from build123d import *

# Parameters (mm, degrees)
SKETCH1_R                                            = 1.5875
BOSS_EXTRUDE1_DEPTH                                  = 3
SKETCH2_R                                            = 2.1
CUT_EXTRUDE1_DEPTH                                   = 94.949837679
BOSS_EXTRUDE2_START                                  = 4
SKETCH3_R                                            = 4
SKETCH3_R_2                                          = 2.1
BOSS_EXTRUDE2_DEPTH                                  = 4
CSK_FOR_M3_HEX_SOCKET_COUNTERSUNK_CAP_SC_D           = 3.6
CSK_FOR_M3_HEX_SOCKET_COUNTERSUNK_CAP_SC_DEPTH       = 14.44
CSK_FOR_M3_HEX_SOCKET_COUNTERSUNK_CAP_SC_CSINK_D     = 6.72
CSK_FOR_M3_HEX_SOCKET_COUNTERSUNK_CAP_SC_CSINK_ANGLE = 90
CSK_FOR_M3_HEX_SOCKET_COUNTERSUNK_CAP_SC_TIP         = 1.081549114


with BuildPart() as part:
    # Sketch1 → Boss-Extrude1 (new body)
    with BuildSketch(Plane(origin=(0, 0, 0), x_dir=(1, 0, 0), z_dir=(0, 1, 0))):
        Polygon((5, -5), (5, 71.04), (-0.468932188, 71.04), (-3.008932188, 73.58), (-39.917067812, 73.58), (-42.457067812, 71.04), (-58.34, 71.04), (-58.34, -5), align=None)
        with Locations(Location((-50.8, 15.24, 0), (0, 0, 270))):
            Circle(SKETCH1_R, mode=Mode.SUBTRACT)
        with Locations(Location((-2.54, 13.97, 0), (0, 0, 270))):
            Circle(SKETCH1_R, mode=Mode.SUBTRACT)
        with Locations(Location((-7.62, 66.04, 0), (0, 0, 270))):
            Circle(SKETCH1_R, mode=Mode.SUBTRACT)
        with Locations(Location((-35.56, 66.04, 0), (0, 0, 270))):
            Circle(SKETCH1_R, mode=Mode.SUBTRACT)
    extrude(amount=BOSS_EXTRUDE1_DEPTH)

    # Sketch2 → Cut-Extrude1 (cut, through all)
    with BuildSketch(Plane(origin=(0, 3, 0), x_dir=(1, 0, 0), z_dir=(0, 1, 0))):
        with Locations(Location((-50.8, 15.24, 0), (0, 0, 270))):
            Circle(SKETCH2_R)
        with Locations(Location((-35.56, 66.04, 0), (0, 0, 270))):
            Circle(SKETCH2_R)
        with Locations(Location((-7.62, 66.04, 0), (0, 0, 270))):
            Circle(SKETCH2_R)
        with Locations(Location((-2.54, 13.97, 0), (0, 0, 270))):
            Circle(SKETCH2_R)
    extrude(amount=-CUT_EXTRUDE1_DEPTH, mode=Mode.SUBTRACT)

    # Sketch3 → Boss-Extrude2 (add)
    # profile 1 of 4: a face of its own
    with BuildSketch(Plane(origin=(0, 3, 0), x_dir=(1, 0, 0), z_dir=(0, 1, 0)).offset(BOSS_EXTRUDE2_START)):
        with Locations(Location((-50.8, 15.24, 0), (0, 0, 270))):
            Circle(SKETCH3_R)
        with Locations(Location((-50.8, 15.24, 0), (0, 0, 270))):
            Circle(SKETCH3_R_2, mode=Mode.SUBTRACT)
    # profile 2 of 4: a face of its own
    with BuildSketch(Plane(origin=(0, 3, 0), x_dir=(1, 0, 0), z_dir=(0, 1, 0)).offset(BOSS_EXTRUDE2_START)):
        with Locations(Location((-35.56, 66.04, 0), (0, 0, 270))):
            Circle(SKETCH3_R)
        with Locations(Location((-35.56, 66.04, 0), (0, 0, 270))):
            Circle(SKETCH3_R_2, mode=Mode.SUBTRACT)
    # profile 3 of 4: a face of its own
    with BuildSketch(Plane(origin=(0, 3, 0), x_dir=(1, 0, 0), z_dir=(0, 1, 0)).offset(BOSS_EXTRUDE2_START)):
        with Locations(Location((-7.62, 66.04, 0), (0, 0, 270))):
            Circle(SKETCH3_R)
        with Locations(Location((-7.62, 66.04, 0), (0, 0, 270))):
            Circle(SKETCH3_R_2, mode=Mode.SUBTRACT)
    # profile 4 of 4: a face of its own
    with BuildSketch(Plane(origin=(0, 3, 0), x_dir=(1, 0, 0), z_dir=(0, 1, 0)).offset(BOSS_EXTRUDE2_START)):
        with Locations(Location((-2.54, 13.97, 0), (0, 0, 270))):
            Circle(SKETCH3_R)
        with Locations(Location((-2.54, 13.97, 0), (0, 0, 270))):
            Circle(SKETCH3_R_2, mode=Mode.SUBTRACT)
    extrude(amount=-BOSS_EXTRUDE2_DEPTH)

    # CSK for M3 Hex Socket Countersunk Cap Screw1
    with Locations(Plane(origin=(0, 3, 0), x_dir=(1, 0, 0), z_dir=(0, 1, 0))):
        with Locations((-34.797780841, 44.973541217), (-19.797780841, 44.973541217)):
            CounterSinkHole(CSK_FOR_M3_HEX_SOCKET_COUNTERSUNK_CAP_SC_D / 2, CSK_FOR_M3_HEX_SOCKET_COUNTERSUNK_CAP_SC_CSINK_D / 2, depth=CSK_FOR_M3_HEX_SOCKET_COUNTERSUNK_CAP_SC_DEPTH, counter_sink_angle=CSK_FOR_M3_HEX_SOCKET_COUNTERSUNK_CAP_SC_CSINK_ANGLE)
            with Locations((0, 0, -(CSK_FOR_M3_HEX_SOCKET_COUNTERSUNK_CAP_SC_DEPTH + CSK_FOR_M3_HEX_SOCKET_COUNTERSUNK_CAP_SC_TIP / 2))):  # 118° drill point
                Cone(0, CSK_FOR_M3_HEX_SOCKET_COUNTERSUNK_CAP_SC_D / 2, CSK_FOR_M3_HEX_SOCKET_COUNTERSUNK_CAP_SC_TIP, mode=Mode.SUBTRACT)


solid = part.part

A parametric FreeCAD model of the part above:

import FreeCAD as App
import Part
import Sketcher


def add_polygon(sketch, points):
    """Adds a closed chain of lines whose ends are joined by coincident constraints."""
    first, n = sketch.GeometryCount, len(points)
    for a, b in zip(points, points[1:] + points[:1]):
        sketch.addGeometry(Part.LineSegment(App.Vector(*a, 0), App.Vector(*b, 0)), False)
    for i in range(n):
        sketch.addConstraint(Sketcher.Constraint("Coincident", first + i, 2, first + (i + 1) % n, 1))

doc = App.newDocument("Part")
body = doc.addObject("PartDesign::Body", "Body")

# Sketch on XZ plane
sketch1 = body.newObject("Sketcher::SketchObject", "Sketch")
sketch1.AttachmentSupport = (doc.getObject("XZ_Plane"), [""])
sketch1.MapMode = "FlatFace"
add_polygon(sketch1, [(5, 5), (5, -71), (-0.5, -71), (-3, -73.6), (-39.9, -73.6), (-42.5, -71), (-58.3, -71), (-58.3, 5)])  # lines 0-7
sketch1.addGeometry(Part.Circle(App.Vector(-50.8, -15.2, 0), App.Vector(0, 0, 1), 1.6), False)  # 8
sketch1.addGeometry(Part.Circle(App.Vector(-2.5, -14, 0), App.Vector(0, 0, 1), 1.6), False)  # 9
sketch1.addGeometry(Part.Circle(App.Vector(-35.6, -66, 0), App.Vector(0, 0, 1), 1.6), False)  # 10
sketch1.addGeometry(Part.Circle(App.Vector(-7.6, -66, 0), App.Vector(0, 0, 1), 1.6), False)  # 11
sketch1.addConstraint(Sketcher.Constraint("Vertical", 0))
sketch1.addConstraint(Sketcher.Constraint("Horizontal", 1))
sketch1.addConstraint(Sketcher.Constraint("Horizontal", 3))
sketch1.addConstraint(Sketcher.Constraint("Horizontal", 5))
sketch1.addConstraint(Sketcher.Constraint("Vertical", 6))
sketch1.addConstraint(Sketcher.Constraint("Horizontal", 7))
sketch1.addConstraint(Sketcher.Constraint("Equal", 8, 9))
sketch1.addConstraint(Sketcher.Constraint("Equal", 9, 10))
sketch1.addConstraint(Sketcher.Constraint("Equal", 10, 11))
sketch1.addConstraint(Sketcher.Constraint("Perpendicular", 2, 4))
sketch1.addConstraint(Sketcher.Constraint("Horizontal", 10, 3, 11, 3))
sketch1.addConstraint(Sketcher.Constraint("Horizontal", 1, 2, 4, 2))
sketch1.addConstraint(Sketcher.Constraint("Equal", 2, 4))
sketch1.addConstraint(Sketcher.Constraint("Diameter", 8, 3.175))
sketch1.addConstraint(Sketcher.Constraint("DistanceX", -1, 1, 0, 2, 5.0))
sketch1.addConstraint(Sketcher.Constraint("DistanceY", -1, 1, 6, 2, 5.0))
sketch1.addConstraint(Sketcher.Constraint("DistanceY", 0, 2, 11, 3, 5.0))
sketch1.addConstraint(Sketcher.Constraint("DistanceX", 7, 1, 7, 2, 63.34))
sketch1.addConstraint(Sketcher.Constraint("DistanceY", 0, 2, 0, 1, 76.04))
sketch1.addConstraint(Sketcher.Constraint("DistanceX", 8, 3, -1, 1, 50.8))
sketch1.addConstraint(Sketcher.Constraint("DistanceY", 10, 3, 8, 3, 50.8))
sketch1.addConstraint(Sketcher.Constraint("DistanceX", 6, 2, 9, 3, 55.8))
sketch1.addConstraint(Sketcher.Constraint("DistanceY", 9, 3, -1, 1, 13.97))
sketch1.addConstraint(Sketcher.Constraint("DistanceX", 10, 3, -1, 1, 35.56))
sketch1.addConstraint(Sketcher.Constraint("DistanceX", 11, 3, -1, 1, 7.62))
sketch1.addConstraint(Sketcher.Constraint("DistanceY", 2, 2, -1, 1, 73.58))
sketch1.addConstraint(Sketcher.Constraint("DistanceX", 1, 2, 1, 1, 5.468932))
sketch1.addConstraint(Sketcher.Constraint("DistanceX", 3, 2, 3, 1, 36.908136))
pad1 = body.newObject("PartDesign::Pad", "Pad")
pad1.Profile = sketch1
pad1.Length = 3
pad1.Reversed = True

# Sketch on XZ plane
sketch2 = body.newObject("Sketcher::SketchObject", "Sketch001")
sketch2.AttachmentSupport = (doc.getObject("XZ_Plane"), [""])
sketch2.MapMode = "FlatFace"
sketch2.AttachmentOffset = App.Placement(App.Vector(0, 0, -3), App.Rotation())
sketch2.addGeometry(Part.Circle(App.Vector(-50.8, -15.2, 0), App.Vector(0, 0, 1), 2.1), False)
sketch2.addGeometry(Part.Circle(App.Vector(-35.6, -66, 0), App.Vector(0, 0, 1), 2.1), False)
sketch2.addGeometry(Part.Circle(App.Vector(-7.6, -66, 0), App.Vector(0, 0, 1), 2.1), False)
sketch2.addGeometry(Part.Circle(App.Vector(-2.5, -14, 0), App.Vector(0, 0, 1), 2.1), False)
sketch2.addConstraint(Sketcher.Constraint("Equal", 0, 1))
sketch2.addConstraint(Sketcher.Constraint("Equal", 1, 2))
sketch2.addConstraint(Sketcher.Constraint("Equal", 2, 3))
sketch2.addConstraint(Sketcher.Constraint("Horizontal", 1, 3, 2, 3))
sketch2.addConstraint(Sketcher.Constraint("Diameter", 0, 4.2))
sketch2.addConstraint(Sketcher.Constraint("DistanceX", 0, 3, -1, 1, 50.8))
sketch2.addConstraint(Sketcher.Constraint("DistanceY", 1, 3, 0, 3, 50.8))
sketch2.addConstraint(Sketcher.Constraint("DistanceY", 0, 3, -1, 1, 15.24))
sketch2.addConstraint(Sketcher.Constraint("DistanceX", 1, 3, -1, 1, 35.56))
sketch2.addConstraint(Sketcher.Constraint("DistanceX", 2, 3, -1, 1, 7.62))
sketch2.addConstraint(Sketcher.Constraint("DistanceX", 3, 3, -1, 1, 2.54))
sketch2.addConstraint(Sketcher.Constraint("DistanceY", 3, 3, -1, 1, 13.97))
pocket1 = body.newObject("PartDesign::Pocket", "Pocket")
pocket1.Profile = sketch2
pocket1.Type = "ThroughAll"
pocket1.Reversed = True

# Sketch on XZ plane
sketch3 = body.newObject("Sketcher::SketchObject", "Sketch002")
sketch3.AttachmentSupport = (doc.getObject("XZ_Plane"), [""])
sketch3.MapMode = "FlatFace"
sketch3.AttachmentOffset = App.Placement(App.Vector(0, 0, -7), App.Rotation())
sketch3.addGeometry(Part.Circle(App.Vector(-50.8, -15.2, 0), App.Vector(0, 0, 1), 4), False)
sketch3.addGeometry(Part.Circle(App.Vector(-50.8, -15.2, 0), App.Vector(0, 0, 1), 2.1), False)
sketch3.addGeometry(Part.Circle(App.Vector(-35.6, -66, 0), App.Vector(0, 0, 1), 4), False)
sketch3.addGeometry(Part.Circle(App.Vector(-35.6, -66, 0), App.Vector(0, 0, 1), 2.1), False)
sketch3.addGeometry(Part.Circle(App.Vector(-7.6, -66, 0), App.Vector(0, 0, 1), 4), False)
sketch3.addGeometry(Part.Circle(App.Vector(-7.6, -66, 0), App.Vector(0, 0, 1), 2.1), False)
sketch3.addGeometry(Part.Circle(App.Vector(-2.5, -14, 0), App.Vector(0, 0, 1), 4), False)
sketch3.addGeometry(Part.Circle(App.Vector(-2.5, -14, 0), App.Vector(0, 0, 1), 2.1), False)
sketch3.addConstraint(Sketcher.Constraint("Coincident", 1, 3, 0, 3))
sketch3.addConstraint(Sketcher.Constraint("Coincident", 3, 3, 2, 3))
sketch3.addConstraint(Sketcher.Constraint("Coincident", 5, 3, 4, 3))
sketch3.addConstraint(Sketcher.Constraint("Coincident", 7, 3, 6, 3))
sketch3.addConstraint(Sketcher.Constraint("Equal", 0, 2))
sketch3.addConstraint(Sketcher.Constraint("Equal", 1, 3))
sketch3.addConstraint(Sketcher.Constraint("Equal", 2, 4))
sketch3.addConstraint(Sketcher.Constraint("Equal", 3, 5))
sketch3.addConstraint(Sketcher.Constraint("Equal", 4, 6))
sketch3.addConstraint(Sketcher.Constraint("Equal", 5, 7))
sketch3.addConstraint(Sketcher.Constraint("Horizontal", 3, 3, 4, 3))
sketch3.addConstraint(Sketcher.Constraint("Diameter", 0, 8.0))
sketch3.addConstraint(Sketcher.Constraint("Diameter", 1, 4.2))
sketch3.addConstraint(Sketcher.Constraint("DistanceX", 0, 3, -1, 1, 50.8))
sketch3.addConstraint(Sketcher.Constraint("DistanceY", 2, 3, 0, 3, 50.8))
sketch3.addConstraint(Sketcher.Constraint("DistanceY", 0, 3, -1, 1, 15.24))
sketch3.addConstraint(Sketcher.Constraint("DistanceX", 2, 3, -1, 1, 35.56))
sketch3.addConstraint(Sketcher.Constraint("DistanceX", 4, 3, -1, 1, 7.62))
sketch3.addConstraint(Sketcher.Constraint("DistanceX", 6, 3, -1, 1, 2.54))
sketch3.addConstraint(Sketcher.Constraint("DistanceY", 6, 3, -1, 1, 13.97))
pad2 = body.newObject("PartDesign::Pad", "Pad001")
pad2.Profile = sketch3
pad2.Length = 4

# Sketch on XZ plane
sketch4 = body.newObject("Sketcher::SketchObject", "Sketch003")
sketch4.AttachmentSupport = (doc.getObject("XZ_Plane"), [""])
sketch4.MapMode = "FlatFace"
sketch4.AttachmentOffset = App.Placement(App.Vector(0, 0, -3), App.Rotation())
sketch4.addGeometry(Part.Circle(App.Vector(-34.8, -45, 0), App.Vector(0, 0, 1), 1.8), False)
sketch4.addGeometry(Part.Circle(App.Vector(-19.8, -45, 0), App.Vector(0, 0, 1), 1.8), False)
sketch4.addConstraint(Sketcher.Constraint("Equal", 0, 1))
sketch4.addConstraint(Sketcher.Constraint("Horizontal", 0, 3, 1, 3))
sketch4.addConstraint(Sketcher.Constraint("Diameter", 0, 3.6))
sketch4.addConstraint(Sketcher.Constraint("DistanceX", 0, 3, 1, 3, 15.0))
sketch4.addConstraint(Sketcher.Constraint("DistanceX", 0, 3, -1, 1, 34.797781))
sketch4.addConstraint(Sketcher.Constraint("DistanceY", 0, 3, -1, 1, 44.973541))
doc.recompute()
hole = body.newObject("PartDesign::Hole", "Hole")
hole.Profile = sketch4
hole.ThreadType = "None"
hole.Diameter = 3.6
hole.DepthType = "Dimension"
hole.Depth = 14.44
hole.DrillPoint = "Angled"
hole.DrillPointAngle = 118
hole.HoleCutType = "Countersink"
hole.HoleCutDiameter = 6.72
hole.HoleCutCountersinkAngle = 90
hole.Reversed = True

doc.recompute()
